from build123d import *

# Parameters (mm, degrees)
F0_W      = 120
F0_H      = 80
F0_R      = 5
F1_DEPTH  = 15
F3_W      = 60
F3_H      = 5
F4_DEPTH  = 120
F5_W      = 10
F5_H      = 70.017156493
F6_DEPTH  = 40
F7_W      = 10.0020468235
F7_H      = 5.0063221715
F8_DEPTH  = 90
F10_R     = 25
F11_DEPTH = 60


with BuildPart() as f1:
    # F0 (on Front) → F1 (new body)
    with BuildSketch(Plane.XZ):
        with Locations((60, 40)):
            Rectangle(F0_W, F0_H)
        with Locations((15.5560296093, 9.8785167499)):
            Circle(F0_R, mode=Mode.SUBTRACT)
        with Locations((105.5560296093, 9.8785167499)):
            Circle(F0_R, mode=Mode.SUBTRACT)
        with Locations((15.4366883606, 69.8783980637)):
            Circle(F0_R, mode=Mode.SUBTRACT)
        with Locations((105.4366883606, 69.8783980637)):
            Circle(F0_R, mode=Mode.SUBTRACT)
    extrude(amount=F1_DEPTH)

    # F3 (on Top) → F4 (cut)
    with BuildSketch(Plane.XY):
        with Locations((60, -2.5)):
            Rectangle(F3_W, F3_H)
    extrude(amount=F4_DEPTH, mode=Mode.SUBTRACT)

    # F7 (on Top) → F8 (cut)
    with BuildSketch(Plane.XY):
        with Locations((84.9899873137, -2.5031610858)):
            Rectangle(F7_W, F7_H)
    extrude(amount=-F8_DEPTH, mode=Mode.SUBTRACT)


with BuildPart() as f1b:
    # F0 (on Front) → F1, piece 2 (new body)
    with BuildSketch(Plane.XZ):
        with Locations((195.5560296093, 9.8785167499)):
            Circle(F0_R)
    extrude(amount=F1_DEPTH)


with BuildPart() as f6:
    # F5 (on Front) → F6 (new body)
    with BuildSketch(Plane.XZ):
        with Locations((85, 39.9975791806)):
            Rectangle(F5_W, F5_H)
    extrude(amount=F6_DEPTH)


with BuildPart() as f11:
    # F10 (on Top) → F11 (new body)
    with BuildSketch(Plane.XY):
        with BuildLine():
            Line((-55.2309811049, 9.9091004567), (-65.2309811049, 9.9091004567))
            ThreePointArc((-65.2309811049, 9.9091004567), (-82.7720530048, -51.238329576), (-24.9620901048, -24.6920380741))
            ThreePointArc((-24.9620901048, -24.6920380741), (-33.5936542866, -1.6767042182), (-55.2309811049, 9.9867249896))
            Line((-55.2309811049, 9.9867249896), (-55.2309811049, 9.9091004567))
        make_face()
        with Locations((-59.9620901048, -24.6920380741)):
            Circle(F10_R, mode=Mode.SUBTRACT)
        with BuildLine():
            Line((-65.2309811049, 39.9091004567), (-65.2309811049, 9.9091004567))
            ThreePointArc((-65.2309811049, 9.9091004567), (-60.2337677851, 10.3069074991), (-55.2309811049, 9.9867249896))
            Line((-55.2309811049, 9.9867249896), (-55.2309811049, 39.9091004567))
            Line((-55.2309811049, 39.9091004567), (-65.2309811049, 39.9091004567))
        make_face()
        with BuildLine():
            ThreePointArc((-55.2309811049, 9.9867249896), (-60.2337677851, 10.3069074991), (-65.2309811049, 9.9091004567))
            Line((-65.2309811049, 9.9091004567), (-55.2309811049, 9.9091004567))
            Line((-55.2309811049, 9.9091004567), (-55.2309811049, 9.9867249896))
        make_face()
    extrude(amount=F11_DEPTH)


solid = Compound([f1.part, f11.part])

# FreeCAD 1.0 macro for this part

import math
import FreeCAD as App
import Part
import Sketcher
from FreeCAD import Vector


def add_polygon(sketch, points):
    """Adds a closed chain of lines whose ends are joined by coincident constraints."""
    first, n = sketch.GeometryCount, len(points)
    for a, b in zip(points, points[1:] + points[:1]):
        sketch.addGeometry(Part.LineSegment(App.Vector(*a, 0), App.Vector(*b, 0)), False)
    for i in range(n):
        sketch.addConstraint(Sketcher.Constraint("Coincident", first + i, 2, first + (i + 1) % n, 1))

doc = App.newDocument("Part")
body = doc.addObject("PartDesign::Body", "Body")

# Sketch on XZ plane
sketch1 = doc.addObject("Sketcher::SketchObject", "Sketch")
body.addObject(sketch1)
sketch1.AttachmentSupport = (doc.XZ_Plane, [""])
sketch1.MapMode = "FlatFace"
add_polygon(sketch1, [(0, 80), (0, 0), (120, 0), (120, 80)])  # lines 0-3
sketch1.addGeometry(Part.Circle(Vector(16, 10, 0), Vector(0, 0, 1), 5), False)  # 4
sketch1.addGeometry(Part.Circle(Vector(106, 10, 0), Vector(0, 0, 1), 5), False)  # 5
sketch1.addGeometry(Part.Circle(Vector(15, 70, 0), Vector(0, 0, 1), 5), False)  # 6
sketch1.addGeometry(Part.Circle(Vector(105, 70, 0), Vector(0, 0, 1), 5), False)  # 7
sketch1.addConstraint([
    Sketcher.Constraint("Vertical", 0),
    Sketcher.Constraint("Horizontal", 1),
    Sketcher.Constraint("Vertical", 2),
    Sketcher.Constraint("Horizontal", 3),
    Sketcher.Constraint("Coincident", 0, 2, -1, 1),
    Sketcher.Constraint("Equal", 4, 5),
    Sketcher.Constraint("Equal", 5, 6),
    Sketcher.Constraint("Equal", 6, 7),
    Sketcher.Constraint("Horizontal", 4, 3, 5, 3),
    Sketcher.Constraint("Horizontal", 6, 3, 7, 3),
    Sketcher.Constraint("Diameter", 4, 10.0),
    Sketcher.Constraint("DistanceX", 1, 1, 1, 2, 120.0),
    Sketcher.Constraint("DistanceY", 0, 2, 0, 1, 80.0),
    Sketcher.Constraint("DistanceX", 4, 3, 5, 3, 90.0),
    Sketcher.Constraint("DistanceX", 6, 3, 7, 3, 90.0),
    Sketcher.Constraint("DistanceY", -1, 1, 6, 3, 69.878398),
    Sketcher.Constraint("DistanceX", -1, 1, 4, 3, 15.55603),
    Sketcher.Constraint("DistanceX", -1, 1, 6, 3, 15.436688),
    Sketcher.Constraint("DistanceY", 4, 3, 6, 3, 59.999881),
])
pad1 = doc.addObject("PartDesign::Pad", "Pad")
body.addObject(pad1)
pad1.Profile = sketch1
pad1.Length = 15

# Sketch on XY plane
sketch2 = doc.addObject("Sketcher::SketchObject", "Sketch001")
body.addObject(sketch2)
sketch2.AttachmentSupport = (doc.XY_Plane, [""])
sketch2.MapMode = "FlatFace"
add_polygon(sketch2, [(30, 0), (30, -5), (90, -5), (90, 0)])  # lines 0-3
sketch2.addConstraint([
    Sketcher.Constraint("Vertical", 0),
    Sketcher.Constraint("Horizontal", 1),
    Sketcher.Constraint("Vertical", 2),
    Sketcher.Constraint("Horizontal", 3),
    Sketcher.Constraint("PointOnObject", 2, 2, -1),
    Sketcher.Constraint("DistanceX", 1, 1, 1, 2, 60.0),
    Sketcher.Constraint("DistanceY", 0, 2, 0, 1, 5.0),
    Sketcher.Constraint("DistanceX", -1, 1, 0, 2, 30.0),
])
pocket1 = doc.addObject("PartDesign::Pocket", "Pocket")
body.addObject(pocket1)
pocket1.Profile = sketch2
pocket1.Length = 120
pocket1.Reversed = True

# Sketch on XY plane
sketch3 = doc.addObject("Sketcher::SketchObject", "Sketch002")
body.addObject(sketch3)
sketch3.AttachmentSupport = (doc.XY_Plane, [""])
sketch3.MapMode = "FlatFace"
add_polygon(sketch3, [(80, 0), (80, -5), (90, -5), (90, 0)])  # lines 0-3
sketch3.addConstraint([
    Sketcher.Constraint("Vertical", 0),
    Sketcher.Constraint("Horizontal", 1),
    Sketcher.Constraint("Vertical", 2),
    Sketcher.Constraint("Horizontal", 3),
    Sketcher.Constraint("PointOnObject", 2, 2, -1),
    Sketcher.Constraint("DistanceX", 1, 1, 1, 2, 10.002047),
    Sketcher.Constraint("DistanceY", 0, 2, 0, 1, 5.006322),
    Sketcher.Constraint("DistanceX", -1, 1, 1, 2, 89.991011),
])
pocket2 = doc.addObject("PartDesign::Pocket", "Pocket001")
body.addObject(pocket2)
pocket2.Profile = sketch3
pocket2.Length = 90
body2 = doc.addObject("PartDesign::Body", "Body001")

# Sketch on XZ plane
sketch4 = doc.addObject("Sketcher::SketchObject", "Sketch003")
body2.addObject(sketch4)
sketch4.AttachmentSupport = (doc.getObject("XZ_Plane001"), [""])
sketch4.MapMode = "FlatFace"
sketch4.addGeometry(Part.Circle(Vector(196, 10, 0), Vector(0, 0, 1), 5), False)
sketch4.addConstraint([
    Sketcher.Constraint("Diameter", 0, 10.0),
    Sketcher.Constraint("DistanceX", -1, 1, 0, 3, 195.55603),
    Sketcher.Constraint("DistanceY", -1, 1, 0, 3, 9.878517),
])
pad2 = doc.addObject("PartDesign::Pad", "Pad001")
body2.addObject(pad2)
pad2.Profile = sketch4
pad2.Length = 15
body3 = doc.addObject("PartDesign::Body", "Body002")

# Sketch on XZ plane
sketch5 = doc.addObject("Sketcher::SketchObject", "Sketch004")
body3.addObject(sketch5)
sketch5.AttachmentSupport = (doc.getObject("XZ_Plane002"), [""])
sketch5.MapMode = "FlatFace"
add_polygon(sketch5, [(80, 75), (80, 5), (90, 5), (90, 75)])  # lines 0-3
sketch5.addConstraint([
    Sketcher.Constraint("Vertical", 0),
    Sketcher.Constraint("Horizontal", 1),
    Sketcher.Constraint("Vertical", 2),
    Sketcher.Constraint("Horizontal", 3),
    Sketcher.Constraint("DistanceX", 1, 1, 1, 2, 10.0),
    Sketcher.Constraint("DistanceX", -1, 1, 0, 2, 80.0),
    Sketcher.Constraint("DistanceY", -1, 1, 0, 2, 4.989001),
    Sketcher.Constraint("DistanceY", 0, 2, 0, 1, 70.017156),
])
pad3 = doc.addObject("PartDesign::Pad", "Pad002")
body3.addObject(pad3)
pad3.Profile = sketch5
pad3.Length = 40
body4 = doc.addObject("PartDesign::Body", "Body003")

# Sketch on XY plane
sketch6 = doc.addObject("Sketcher::SketchObject", "Sketch005")
body4.addObject(sketch6)
sketch6.AttachmentSupport = (doc.getObject("XY_Plane003"), [""])
sketch6.MapMode = "FlatFace"
sketch6.addGeometry([
    Part.ArcOfCircle(Part.Circle(Vector(-60, -25, 0), Vector(0, 0, 1), 35), math.radians(99), math.radians(360)),  # 0
    Part.ArcOfCircle(Part.Circle(Vector(-60, -25, 0), Vector(0, 0, 1), 35), math.radians(0), math.radians(82)),  # 1
    Part.LineSegment(Vector(-55, 10, 0), Vector(-55, 40, 0)),  # 2
    Part.LineSegment(Vector(-55, 40, 0), Vector(-65, 40, 0)),  # 3
    Part.LineSegment(Vector(-65, 40, 0), Vector(-65, 10, 0)),  # 4
    Part.Circle(Vector(-60, -25, 0), Vector(0, 0, 1), 25),  # 5
], False)
sketch6.addConstraint([
    Sketcher.Constraint("Tangent", 0, 2, 1, 1),
    Sketcher.Constraint("Coincident", 1, 2, 2, 1),
    Sketcher.Constraint("Coincident", 2, 2, 3, 1),
    Sketcher.Constraint("Coincident", 3, 2, 4, 1),
    Sketcher.Constraint("Coincident", 4, 2, 0, 1),
    Sketcher.Constraint("Vertical", 2),
    Sketcher.Constraint("Horizontal", 3),
    Sketcher.Constraint("Vertical", 4),
    Sketcher.Constraint("Coincident", 5, 3, 0, 3),
    Sketcher.Constraint("Equal", 0, 1),
    Sketcher.Constraint("Horizontal", 5, 3, 0, 2),
    Sketcher.Constraint("Diameter", 5, 50.0),
    Sketcher.Constraint("Radius", 0, 35.0),
    Sketcher.Constraint("DistanceX", 3, 2, 3, 1, 10.0),
    Sketcher.Constraint("DistanceY", 4, 2, 4, 1, 30.0),
    Sketcher.Constraint("DistanceY", -1, 1, 2, 2, 39.9091),
    Sketcher.Constraint("DistanceY", 2, 1, 2, 2, 29.922375),
    Sketcher.Constraint("DistanceX", 0, 3, -1, 1, 59.96209),
])
pad4 = doc.addObject("PartDesign::Pad", "Pad003")
body4.addObject(pad4)
pad4.Profile = sketch6
pad4.Length = 60
body2.Visibility = False
body3.Visibility = False

doc.recompute()
